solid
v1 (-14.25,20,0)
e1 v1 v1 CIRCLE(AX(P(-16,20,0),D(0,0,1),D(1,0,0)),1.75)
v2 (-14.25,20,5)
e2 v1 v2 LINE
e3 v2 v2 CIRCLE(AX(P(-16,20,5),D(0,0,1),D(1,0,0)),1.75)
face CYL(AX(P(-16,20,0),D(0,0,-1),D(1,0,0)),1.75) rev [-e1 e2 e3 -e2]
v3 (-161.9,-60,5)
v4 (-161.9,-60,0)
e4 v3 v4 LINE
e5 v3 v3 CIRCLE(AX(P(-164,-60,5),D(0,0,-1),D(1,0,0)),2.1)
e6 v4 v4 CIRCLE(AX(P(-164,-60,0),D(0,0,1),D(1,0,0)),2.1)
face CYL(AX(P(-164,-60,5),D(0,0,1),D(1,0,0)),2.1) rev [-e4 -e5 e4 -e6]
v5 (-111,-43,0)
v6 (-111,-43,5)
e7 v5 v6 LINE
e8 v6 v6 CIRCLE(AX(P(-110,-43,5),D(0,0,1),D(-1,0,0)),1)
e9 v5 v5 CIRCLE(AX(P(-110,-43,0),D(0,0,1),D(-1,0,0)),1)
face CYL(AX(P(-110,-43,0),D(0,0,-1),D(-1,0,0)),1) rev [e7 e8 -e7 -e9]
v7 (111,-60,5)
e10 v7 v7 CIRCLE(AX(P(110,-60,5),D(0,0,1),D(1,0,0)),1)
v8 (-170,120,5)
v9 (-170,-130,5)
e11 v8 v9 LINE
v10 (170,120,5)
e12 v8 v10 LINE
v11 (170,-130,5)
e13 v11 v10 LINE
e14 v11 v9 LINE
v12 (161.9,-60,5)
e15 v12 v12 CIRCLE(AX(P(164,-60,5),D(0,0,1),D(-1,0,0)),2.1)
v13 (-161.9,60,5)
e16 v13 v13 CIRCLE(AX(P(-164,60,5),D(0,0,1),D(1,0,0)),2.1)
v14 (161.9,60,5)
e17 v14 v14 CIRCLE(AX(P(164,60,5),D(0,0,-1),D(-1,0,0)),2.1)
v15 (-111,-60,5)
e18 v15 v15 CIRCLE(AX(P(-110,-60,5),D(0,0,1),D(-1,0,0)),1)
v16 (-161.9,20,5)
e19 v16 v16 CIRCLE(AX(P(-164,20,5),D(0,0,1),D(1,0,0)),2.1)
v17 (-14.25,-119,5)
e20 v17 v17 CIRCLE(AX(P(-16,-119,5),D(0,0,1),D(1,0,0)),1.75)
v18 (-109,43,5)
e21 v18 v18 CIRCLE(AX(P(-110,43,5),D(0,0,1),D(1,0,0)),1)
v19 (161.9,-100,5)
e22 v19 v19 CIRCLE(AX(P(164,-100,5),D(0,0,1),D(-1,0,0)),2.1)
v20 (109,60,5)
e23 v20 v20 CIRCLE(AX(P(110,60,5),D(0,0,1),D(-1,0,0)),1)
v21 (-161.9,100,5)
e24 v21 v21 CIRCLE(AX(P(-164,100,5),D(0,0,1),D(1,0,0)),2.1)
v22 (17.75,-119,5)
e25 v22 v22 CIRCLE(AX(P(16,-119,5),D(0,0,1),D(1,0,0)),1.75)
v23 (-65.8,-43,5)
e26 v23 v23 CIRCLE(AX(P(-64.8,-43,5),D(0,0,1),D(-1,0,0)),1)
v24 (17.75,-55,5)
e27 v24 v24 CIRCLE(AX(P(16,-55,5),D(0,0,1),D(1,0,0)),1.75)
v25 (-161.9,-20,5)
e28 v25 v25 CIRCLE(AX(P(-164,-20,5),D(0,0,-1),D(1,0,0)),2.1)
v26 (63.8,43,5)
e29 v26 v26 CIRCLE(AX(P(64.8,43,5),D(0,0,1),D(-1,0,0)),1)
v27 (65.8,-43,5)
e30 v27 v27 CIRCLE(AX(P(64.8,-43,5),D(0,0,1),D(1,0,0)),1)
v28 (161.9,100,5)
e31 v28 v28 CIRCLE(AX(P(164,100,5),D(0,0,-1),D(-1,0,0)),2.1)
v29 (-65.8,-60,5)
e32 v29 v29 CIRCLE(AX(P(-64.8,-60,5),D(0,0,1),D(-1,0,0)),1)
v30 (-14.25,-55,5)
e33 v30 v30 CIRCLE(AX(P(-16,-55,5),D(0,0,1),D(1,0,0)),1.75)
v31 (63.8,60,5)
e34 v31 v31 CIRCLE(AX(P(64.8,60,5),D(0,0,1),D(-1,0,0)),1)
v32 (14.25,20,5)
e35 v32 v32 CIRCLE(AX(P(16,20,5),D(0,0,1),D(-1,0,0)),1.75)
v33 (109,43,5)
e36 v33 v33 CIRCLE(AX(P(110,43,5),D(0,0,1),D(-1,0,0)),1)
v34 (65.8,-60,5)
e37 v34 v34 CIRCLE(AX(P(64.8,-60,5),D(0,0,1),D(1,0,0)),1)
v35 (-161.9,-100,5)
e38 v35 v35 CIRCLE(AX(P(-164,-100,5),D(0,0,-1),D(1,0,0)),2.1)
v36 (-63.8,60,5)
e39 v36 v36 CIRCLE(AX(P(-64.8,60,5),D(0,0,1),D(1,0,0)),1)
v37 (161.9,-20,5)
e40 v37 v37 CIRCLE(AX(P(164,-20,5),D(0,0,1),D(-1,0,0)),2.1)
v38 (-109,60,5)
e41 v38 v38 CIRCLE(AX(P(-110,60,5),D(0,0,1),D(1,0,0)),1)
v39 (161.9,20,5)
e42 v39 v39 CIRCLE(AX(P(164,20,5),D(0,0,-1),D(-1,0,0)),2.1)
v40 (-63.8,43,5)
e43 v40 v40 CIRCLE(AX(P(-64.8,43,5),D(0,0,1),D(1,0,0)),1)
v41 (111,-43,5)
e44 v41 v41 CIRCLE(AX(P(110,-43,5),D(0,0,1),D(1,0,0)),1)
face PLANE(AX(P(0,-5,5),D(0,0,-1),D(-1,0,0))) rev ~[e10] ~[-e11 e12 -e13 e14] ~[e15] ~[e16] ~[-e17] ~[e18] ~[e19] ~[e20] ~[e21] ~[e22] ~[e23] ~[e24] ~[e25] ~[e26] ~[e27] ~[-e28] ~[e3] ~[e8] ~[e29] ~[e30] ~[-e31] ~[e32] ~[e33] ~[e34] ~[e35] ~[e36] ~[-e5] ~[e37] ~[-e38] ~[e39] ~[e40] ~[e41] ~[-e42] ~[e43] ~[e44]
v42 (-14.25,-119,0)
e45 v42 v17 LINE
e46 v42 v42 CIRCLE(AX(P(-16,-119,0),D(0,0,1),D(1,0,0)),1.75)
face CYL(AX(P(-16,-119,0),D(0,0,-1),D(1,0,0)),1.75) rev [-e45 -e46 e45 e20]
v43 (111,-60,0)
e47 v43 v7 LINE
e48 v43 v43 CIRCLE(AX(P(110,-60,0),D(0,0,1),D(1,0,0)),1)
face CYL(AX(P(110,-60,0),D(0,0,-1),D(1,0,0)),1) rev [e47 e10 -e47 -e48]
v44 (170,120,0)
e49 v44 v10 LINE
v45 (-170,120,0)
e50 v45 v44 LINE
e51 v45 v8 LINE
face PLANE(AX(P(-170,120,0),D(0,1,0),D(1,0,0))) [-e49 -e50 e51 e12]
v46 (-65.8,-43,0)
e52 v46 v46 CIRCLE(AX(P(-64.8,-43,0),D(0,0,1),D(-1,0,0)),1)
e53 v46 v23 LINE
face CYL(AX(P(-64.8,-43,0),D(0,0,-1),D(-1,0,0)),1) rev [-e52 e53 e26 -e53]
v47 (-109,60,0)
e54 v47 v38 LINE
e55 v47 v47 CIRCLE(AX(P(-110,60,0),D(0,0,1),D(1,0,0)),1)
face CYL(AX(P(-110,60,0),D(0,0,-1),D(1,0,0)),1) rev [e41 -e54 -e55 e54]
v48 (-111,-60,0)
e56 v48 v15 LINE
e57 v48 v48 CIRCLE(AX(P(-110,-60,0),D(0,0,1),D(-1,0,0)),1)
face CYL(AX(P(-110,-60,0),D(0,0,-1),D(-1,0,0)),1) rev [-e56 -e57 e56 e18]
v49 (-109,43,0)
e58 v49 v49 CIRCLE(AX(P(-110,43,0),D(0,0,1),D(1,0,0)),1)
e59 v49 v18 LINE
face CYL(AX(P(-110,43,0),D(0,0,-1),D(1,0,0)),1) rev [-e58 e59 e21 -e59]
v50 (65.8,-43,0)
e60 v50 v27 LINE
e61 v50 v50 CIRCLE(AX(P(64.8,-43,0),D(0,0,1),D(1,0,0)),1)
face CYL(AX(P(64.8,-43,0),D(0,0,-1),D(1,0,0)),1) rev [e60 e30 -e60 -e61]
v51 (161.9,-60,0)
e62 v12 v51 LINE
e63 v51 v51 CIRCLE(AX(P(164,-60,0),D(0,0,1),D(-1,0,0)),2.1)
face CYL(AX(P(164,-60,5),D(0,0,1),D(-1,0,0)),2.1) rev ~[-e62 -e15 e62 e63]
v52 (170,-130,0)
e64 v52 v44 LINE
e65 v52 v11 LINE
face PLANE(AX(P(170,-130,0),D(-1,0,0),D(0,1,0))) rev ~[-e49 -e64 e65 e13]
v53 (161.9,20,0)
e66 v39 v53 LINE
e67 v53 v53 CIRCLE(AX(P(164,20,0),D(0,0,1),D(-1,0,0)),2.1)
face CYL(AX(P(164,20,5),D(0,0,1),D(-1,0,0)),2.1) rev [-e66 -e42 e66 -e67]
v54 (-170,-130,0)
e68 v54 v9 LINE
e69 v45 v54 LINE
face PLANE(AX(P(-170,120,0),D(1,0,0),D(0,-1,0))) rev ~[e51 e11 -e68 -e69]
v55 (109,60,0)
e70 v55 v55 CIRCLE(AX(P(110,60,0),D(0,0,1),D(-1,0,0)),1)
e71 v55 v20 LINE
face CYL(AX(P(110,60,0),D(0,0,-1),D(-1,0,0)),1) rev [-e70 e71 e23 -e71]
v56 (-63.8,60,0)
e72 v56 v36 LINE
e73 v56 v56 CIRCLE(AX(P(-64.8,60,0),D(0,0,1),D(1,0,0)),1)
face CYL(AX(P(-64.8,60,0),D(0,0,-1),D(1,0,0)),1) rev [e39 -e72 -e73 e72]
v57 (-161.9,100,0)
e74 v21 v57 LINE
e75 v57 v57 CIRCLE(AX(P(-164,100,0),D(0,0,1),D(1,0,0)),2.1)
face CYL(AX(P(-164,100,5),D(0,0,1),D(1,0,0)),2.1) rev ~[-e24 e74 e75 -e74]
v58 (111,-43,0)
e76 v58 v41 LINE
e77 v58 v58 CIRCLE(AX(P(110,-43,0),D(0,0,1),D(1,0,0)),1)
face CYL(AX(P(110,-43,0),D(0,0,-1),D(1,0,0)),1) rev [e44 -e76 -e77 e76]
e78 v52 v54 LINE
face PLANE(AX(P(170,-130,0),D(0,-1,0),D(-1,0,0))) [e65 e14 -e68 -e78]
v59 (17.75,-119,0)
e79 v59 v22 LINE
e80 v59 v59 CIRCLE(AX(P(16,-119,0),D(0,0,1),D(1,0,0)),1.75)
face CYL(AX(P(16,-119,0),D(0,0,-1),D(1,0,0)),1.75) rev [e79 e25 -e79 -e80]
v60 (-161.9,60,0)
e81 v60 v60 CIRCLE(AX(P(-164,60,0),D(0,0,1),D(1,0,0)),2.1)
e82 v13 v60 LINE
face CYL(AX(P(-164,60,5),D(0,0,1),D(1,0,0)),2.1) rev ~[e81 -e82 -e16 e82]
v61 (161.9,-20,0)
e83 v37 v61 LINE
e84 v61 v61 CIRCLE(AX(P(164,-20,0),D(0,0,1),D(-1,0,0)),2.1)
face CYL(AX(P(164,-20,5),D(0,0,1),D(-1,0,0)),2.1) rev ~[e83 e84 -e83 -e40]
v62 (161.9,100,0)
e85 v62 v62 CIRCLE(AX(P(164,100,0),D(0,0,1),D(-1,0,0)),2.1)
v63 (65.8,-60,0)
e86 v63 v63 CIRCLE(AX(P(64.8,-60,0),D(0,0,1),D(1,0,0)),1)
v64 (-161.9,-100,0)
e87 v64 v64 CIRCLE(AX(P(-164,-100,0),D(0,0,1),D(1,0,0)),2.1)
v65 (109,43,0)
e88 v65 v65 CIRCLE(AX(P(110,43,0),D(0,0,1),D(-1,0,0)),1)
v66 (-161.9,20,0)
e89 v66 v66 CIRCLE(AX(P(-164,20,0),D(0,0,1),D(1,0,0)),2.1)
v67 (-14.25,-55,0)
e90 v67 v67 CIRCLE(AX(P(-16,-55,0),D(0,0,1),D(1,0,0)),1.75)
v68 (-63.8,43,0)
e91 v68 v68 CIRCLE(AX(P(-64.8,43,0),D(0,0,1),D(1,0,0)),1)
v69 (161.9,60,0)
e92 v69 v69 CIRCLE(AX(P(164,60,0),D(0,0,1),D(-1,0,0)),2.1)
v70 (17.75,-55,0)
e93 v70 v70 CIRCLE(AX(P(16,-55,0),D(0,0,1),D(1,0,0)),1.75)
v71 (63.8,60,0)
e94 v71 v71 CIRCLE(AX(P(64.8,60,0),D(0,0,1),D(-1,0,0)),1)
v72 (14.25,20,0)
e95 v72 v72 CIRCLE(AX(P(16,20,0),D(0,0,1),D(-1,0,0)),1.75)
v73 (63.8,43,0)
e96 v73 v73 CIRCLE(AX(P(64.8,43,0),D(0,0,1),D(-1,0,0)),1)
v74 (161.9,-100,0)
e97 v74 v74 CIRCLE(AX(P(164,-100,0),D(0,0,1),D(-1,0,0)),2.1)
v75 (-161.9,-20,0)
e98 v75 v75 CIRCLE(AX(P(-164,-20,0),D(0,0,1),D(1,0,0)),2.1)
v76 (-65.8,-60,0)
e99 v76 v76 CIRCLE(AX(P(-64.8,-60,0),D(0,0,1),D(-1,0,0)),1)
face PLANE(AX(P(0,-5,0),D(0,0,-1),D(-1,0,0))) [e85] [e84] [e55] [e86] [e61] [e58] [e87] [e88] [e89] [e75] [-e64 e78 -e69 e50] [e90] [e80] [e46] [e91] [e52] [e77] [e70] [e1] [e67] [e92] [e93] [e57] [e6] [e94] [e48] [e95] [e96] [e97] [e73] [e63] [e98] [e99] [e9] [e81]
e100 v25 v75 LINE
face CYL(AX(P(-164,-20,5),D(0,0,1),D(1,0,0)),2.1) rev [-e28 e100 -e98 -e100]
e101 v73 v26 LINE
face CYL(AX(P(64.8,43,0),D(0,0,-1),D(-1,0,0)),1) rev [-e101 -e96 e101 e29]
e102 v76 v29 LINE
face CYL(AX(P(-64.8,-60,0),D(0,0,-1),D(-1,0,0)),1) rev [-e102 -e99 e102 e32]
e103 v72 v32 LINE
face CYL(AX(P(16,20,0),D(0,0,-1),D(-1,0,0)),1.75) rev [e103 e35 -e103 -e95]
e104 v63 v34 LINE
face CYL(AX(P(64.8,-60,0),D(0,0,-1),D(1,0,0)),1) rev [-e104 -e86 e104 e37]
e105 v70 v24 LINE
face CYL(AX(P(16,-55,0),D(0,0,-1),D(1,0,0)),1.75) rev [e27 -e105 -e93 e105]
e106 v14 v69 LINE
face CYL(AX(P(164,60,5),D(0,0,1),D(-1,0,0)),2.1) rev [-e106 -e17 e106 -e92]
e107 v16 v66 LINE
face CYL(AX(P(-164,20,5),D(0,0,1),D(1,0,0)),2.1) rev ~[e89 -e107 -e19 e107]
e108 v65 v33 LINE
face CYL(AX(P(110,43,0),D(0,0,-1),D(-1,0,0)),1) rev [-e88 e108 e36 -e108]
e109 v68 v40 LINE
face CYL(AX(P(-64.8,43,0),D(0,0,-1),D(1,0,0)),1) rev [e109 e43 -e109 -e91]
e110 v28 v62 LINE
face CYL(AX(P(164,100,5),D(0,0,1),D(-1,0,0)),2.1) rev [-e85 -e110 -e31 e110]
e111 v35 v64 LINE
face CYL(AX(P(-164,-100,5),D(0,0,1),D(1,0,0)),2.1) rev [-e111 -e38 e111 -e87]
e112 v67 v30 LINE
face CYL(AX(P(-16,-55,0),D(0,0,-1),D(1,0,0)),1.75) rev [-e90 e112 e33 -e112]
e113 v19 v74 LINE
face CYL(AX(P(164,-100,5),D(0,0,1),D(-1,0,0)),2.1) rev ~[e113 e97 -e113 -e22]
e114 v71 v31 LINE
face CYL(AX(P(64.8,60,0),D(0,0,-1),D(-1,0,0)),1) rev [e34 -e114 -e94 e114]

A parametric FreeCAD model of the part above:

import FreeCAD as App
import Part
import Sketcher

doc = App.newDocument("Part")
params = doc.addObject("Spreadsheet::Sheet", "Params")
for row, (alias, value) in enumerate([
    ("sketch1_diameter", "2 mm"),
    ("sketch1_diameter2", "3.5 mm"),
    ("sketch1_width", "340 mm"),
    ("sketch1_height", "250 mm"),
    ("pad1_length", "5 mm"),
    ("sketch2_diameter", "4.2 mm"),
    ("pocket1_length", "10 mm"),
    ("sketch3_diameter", "4.2 mm"),
    ("pocket2_length", "10 mm"),
], start=1):
    params.set(f"A{row}", alias)
    params.set(f"B{row}", "=" + value)
    params.setAlias(f"B{row}", alias)

body = doc.addObject("PartDesign::Body", "Body")

# Sketch on XY plane
sketch1 = body.newObject("Sketcher::SketchObject", "Sketch")
sketch1.AttachmentSupport = (doc.getObject("XY_Plane"), [""])
sketch1.MapMode = "FlatFace"
sketch1.addGeometry(Part.LineSegment(App.Vector(-170, 120, 0), App.Vector(-170, -130, 0)), False)
sketch1.addGeometry(Part.LineSegment(App.Vector(-170, -130, 0), App.Vector(170, -130, 0)), False)
sketch1.addGeometry(Part.LineSegment(App.Vector(170, -130, 0), App.Vector(170, 120, 0)), False)
sketch1.addGeometry(Part.LineSegment(App.Vector(170, 120, 0), App.Vector(-170, 120, 0)), False)
sketch1.addGeometry(Part.Circle(App.Vector(16, -119, 0), App.Vector(0, 0, 1), 1.8), False)
sketch1.addGeometry(Part.Circle(App.Vector(110, -60, 0), App.Vector(0, 0, 1), 1), False)
sketch1.addGeometry(Part.Circle(App.Vector(64.8, -60, 0), App.Vector(0, 0, 1), 1), False)
sketch1.addGeometry(Part.Circle(App.Vector(110, -43, 0), App.Vector(0, 0, 1), 1), False)
sketch1.addGeometry(Part.Circle(App.Vector(64.8, -43, 0), App.Vector(0, 0, 1), 1), False)
sketch1.addGeometry(Part.Circle(App.Vector(16, -55, 0), App.Vector(0, 0, 1), 1.8), False)
sketch1.addGeometry(Part.Circle(App.Vector(-16, -119, 0), App.Vector(0, 0, 1), 1.8), False)
sketch1.addGeometry(Part.Circle(App.Vector(-16, -55, 0), App.Vector(0, 0, 1), 1.8), False)
sketch1.addGeometry(Part.Circle(App.Vector(-64.8, -60, 0), App.Vector(0, 0, 1), 1), False)
sketch1.addGeometry(Part.Circle(App.Vector(-110, -60, 0), App.Vector(0, 0, 1), 1), False)
sketch1.addGeometry(Part.Circle(App.Vector(-64.8, -43, 0), App.Vector(0, 0, 1), 1), False)
sketch1.addGeometry(Part.Circle(App.Vector(-110, -43, 0), App.Vector(0, 0, 1), 1), False)
sketch1.addGeometry(Part.Circle(App.Vector(110, 43, 0), App.Vector(0, 0, 1), 1), False)
sketch1.addGeometry(Part.Circle(App.Vector(110, 60, 0), App.Vector(0, 0, 1), 1), False)
sketch1.addGeometry(Part.Circle(App.Vector(64.8, 43, 0), App.Vector(0, 0, 1), 1), False)
sketch1.addGeometry(Part.Circle(App.Vector(64.8, 60, 0), App.Vector(0, 0, 1), 1), False)
sketch1.addGeometry(Part.Circle(App.Vector(16, 20, 0), App.Vector(0, 0, 1), 1.8), False)
sketch1.addGeometry(Part.Circle(App.Vector(-16, 20, 0), App.Vector(0, 0, 1), 1.8), False)
sketch1.addGeometry(Part.Circle(App.Vector(-64.8, 43, 0), App.Vector(0, 0, 1), 1), False)
sketch1.addGeometry(Part.Circle(App.Vector(-64.8, 60, 0), App.Vector(0, 0, 1), 1), False)
sketch1.addGeometry(Part.Circle(App.Vector(-110, 43, 0), App.Vector(0, 0, 1), 1), False)
sketch1.addGeometry(Part.Circle(App.Vector(-110, 60, 0), App.Vector(0, 0, 1), 1), False)
sketch1.addConstraint(Sketcher.Constraint("Coincident", 0, 2, 1, 1))
sketch1.addConstraint(Sketcher.Constraint("Coincident", 1, 2, 2, 1))
sketch1.addConstraint(Sketcher.Constraint("Coincident", 2, 2, 3, 1))
sketch1.addConstraint(Sketcher.Constraint("Coincident", 3, 2, 0, 1))
sketch1.addConstraint(Sketcher.Constraint("Vertical", 0))
sketch1.addConstraint(Sketcher.Constraint("Horizontal", 1))
sketch1.addConstraint(Sketcher.Constraint("Vertical", 2))
sketch1.addConstraint(Sketcher.Constraint("Horizontal", 3))
sketch1.addConstraint(Sketcher.Constraint("Equal", 5, 6))
sketch1.addConstraint(Sketcher.Constraint("Equal", 6, 7))
sketch1.addConstraint(Sketcher.Constraint("Equal", 7, 8))
sketch1.addConstraint(Sketcher.Constraint("Equal", 4, 9))
sketch1.addConstraint(Sketcher.Constraint("Equal", 9, 10))
sketch1.addConstraint(Sketcher.Constraint("Equal", 10, 11))
sketch1.addConstraint(Sketcher.Constraint("Equal", 8, 12))
sketch1.addConstraint(Sketcher.Constraint("Equal", 12, 13))
sketch1.addConstraint(Sketcher.Constraint("Equal", 13, 14))
sketch1.addConstraint(Sketcher.Constraint("Equal", 14, 15))
sketch1.addConstraint(Sketcher.Constraint("Equal", 15, 16))
sketch1.addConstraint(Sketcher.Constraint("Equal", 16, 17))
sketch1.addConstraint(Sketcher.Constraint("Equal", 17, 18))
sketch1.addConstraint(Sketcher.Constraint("Equal", 18, 19))
sketch1.addConstraint(Sketcher.Constraint("Equal", 11, 20))
sketch1.addConstraint(Sketcher.Constraint("Equal", 20, 21))
sketch1.addConstraint(Sketcher.Constraint("Equal", 19, 22))
sketch1.addConstraint(Sketcher.Constraint("Equal", 22, 23))
sketch1.addConstraint(Sketcher.Constraint("Equal", 23, 24))
sketch1.addConstraint(Sketcher.Constraint("Equal", 24, 25))
sketch1.addConstraint(Sketcher.Constraint("Symmetric", 15, 3, 16, 3, -1, 1))
sketch1.addConstraint(Sketcher.Constraint("Symmetric", 13, 3, 17, 3, -1, 1))
sketch1.addConstraint(Sketcher.Constraint("Symmetric", 14, 3, 18, 3, -1, 1))
sketch1.addConstraint(Sketcher.Constraint("Symmetric", 12, 3, 19, 3, -1, 1))
sketch1.addConstraint(Sketcher.Constraint("Symmetric", 8, 3, 22, 3, -1, 1))
sketch1.addConstraint(Sketcher.Constraint("Symmetric", 6, 3, 23, 3, -1, 1))
sketch1.addConstraint(Sketcher.Constraint("Symmetric", 7, 3, 24, 3, -1, 1))
sketch1.addConstraint(Sketcher.Constraint("Symmetric", 5, 3, 25, 3, -1, 1))
sketch1.addConstraint(Sketcher.Constraint("Symmetric", 4, 3, 10, 3, -2))
sketch1.addConstraint(Sketcher.Constraint("Symmetric", 9, 3, 11, 3, -2))
sketch1.addConstraint(Sketcher.Constraint("Symmetric", 6, 3, 12, 3, -2))
sketch1.addConstraint(Sketcher.Constraint("Symmetric", 5, 3, 13, 3, -2))
sketch1.addConstraint(Sketcher.Constraint("Symmetric", 8, 3, 14, 3, -2))
sketch1.addConstraint(Sketcher.Constraint("Symmetric", 7, 3, 15, 3, -2))
sketch1.addConstraint(Sketcher.Constraint("Symmetric", 20, 3, 21, 3, -2))
sketch1.addConstraint(Sketcher.Constraint("Horizontal", 5, 3, 6, 3))
sketch1.addConstraint(Sketcher.Constraint("Horizontal", 7, 3, 8, 3))
sketch1.addConstraint(Sketcher.Constraint("Vertical", 5, 3, 7, 3))
sketch1.addConstraint(Sketcher.Constraint("Vertical", 6, 3, 8, 3))
sketch1.addConstraint(Sketcher.Constraint("Vertical", 4, 3, 9, 3))
sketch1.addConstraint(Sketcher.Constraint("Vertical", 9, 3, 20, 3))
sketch1.addConstraint(Sketcher.Constraint("Diameter", 5, 2.0))
sketch1.addConstraint(Sketcher.Constraint("Diameter", 4, 3.5))
sketch1.addConstraint(Sketcher.Constraint("DistanceX", 1, 1, 1, 2, 340.0))
sketch1.addConstraint(Sketcher.Constraint("DistanceY", 0, 2, 0, 1, 250.0))
sketch1.addConstraint(Sketcher.Constraint("DistanceX", -1, 1, 4, 3, 16.0))
sketch1.addConstraint(Sketcher.Constraint("DistanceY", 4, 3, -1, 1, 119.0))
sketch1.addConstraint(Sketcher.Constraint("DistanceX", -1, 1, 5, 3, 110.0))
sketch1.addConstraint(Sketcher.Constraint("DistanceY", 5, 3, -1, 1, 60.0))
sketch1.addConstraint(Sketcher.Constraint("DistanceY", 7, 3, -1, 1, 43.0))
sketch1.addConstraint(Sketcher.Constraint("DistanceY", 9, 3, -1, 1, 55.0))
sketch1.addConstraint(Sketcher.Constraint("DistanceY", -1, 1, 20, 3, 20.0))
sketch1.addConstraint(Sketcher.Constraint("DistanceX", 0, 2, -1, 1, 170.0))
sketch1.addConstraint(Sketcher.Constraint("DistanceY", 0, 2, -1, 1, 130.0))
sketch1.addConstraint(Sketcher.Constraint("DistanceX", -1, 1, 6, 3, 64.8))
sketch1.setExpression("Constraints[49]", "Params.sketch1_diameter")
sketch1.setExpression("Constraints[50]", "Params.sketch1_diameter2")
sketch1.setExpression("Constraints[51]", "Params.sketch1_width")
sketch1.setExpression("Constraints[52]", "Params.sketch1_height")
pad1 = body.newObject("PartDesign::Pad", "Pad")
pad1.Profile = sketch1
pad1.setExpression("Length", "Params.pad1_length")

# Sketch on XY plane
sketch2 = body.newObject("Sketcher::SketchObject", "Sketch001")
sketch2.AttachmentSupport = (doc.getObject("XY_Plane"), [""])
sketch2.MapMode = "FlatFace"
sketch2.AttachmentOffset = App.Placement(App.Vector(0, 0, 5), App.Rotation())
sketch2.addGeometry(Part.Circle(App.Vector(-164, 100, 0), App.Vector(0, 0, 1), 2.1), False)
sketch2.addGeometry(Part.Circle(App.Vector(-164, 60, 0), App.Vector(0, 0, 1), 2.1), False)
sketch2.addGeometry(Part.Circle(App.Vector(-164, 20, 0), App.Vector(0, 0, 1), 2.1), False)
sketch2.addConstraint(Sketcher.Constraint("Equal", 0, 1))
sketch2.addConstraint(Sketcher.Constraint("Equal", 1, 2))
sketch2.addConstraint(Sketcher.Constraint("Vertical", 0, 3, 1, 3))
sketch2.addConstraint(Sketcher.Constraint("Vertical", 1, 3, 2, 3))
sketch2.addConstraint(Sketcher.Constraint("Diameter", 0, 4.2))
sketch2.addConstraint(Sketcher.Constraint("DistanceX", 0, 3, -1, 1, 164.0))
sketch2.addConstraint(Sketcher.Constraint("DistanceY", -1, 1, 0, 3, 100.0))
sketch2.addConstraint(Sketcher.Constraint("DistanceY", -1, 1, 1, 3, 60.0))
sketch2.addConstraint(Sketcher.Constraint("DistanceY", -1, 1, 2, 3, 20.0))
sketch2.setExpression("Constraints[4]", "Params.sketch2_diameter")
pocket1 = body.newObject("PartDesign::Pocket", "Pocket")
pocket1.Profile = sketch2
pocket1.setExpression("Length", "Params.pocket1_length")
doc.recompute()

mirrored = body.newObject("PartDesign::Mirrored", "Mirrored")
mirrored.Originals = [pocket1]
mirrored.MirrorPlane = (doc.getObject("XZ_Plane"), [""])
body.Tip = mirrored
doc.recompute()

mirrored2 = body.newObject("PartDesign::Mirrored", "Mirrored001")
mirrored2.Originals = [pocket1]
mirrored2.MirrorPlane = (doc.getObject("YZ_Plane"), [""])
body.Tip = mirrored2

# Sketch on XY plane
sketch3 = body.newObject("Sketcher::SketchObject", "Sketch002")
sketch3.AttachmentSupport = (doc.getObject("XY_Plane"), [""])
sketch3.MapMode = "FlatFace"
sketch3.AttachmentOffset = App.Placement(App.Vector(0, 0, 5), App.Rotation())
sketch3.addGeometry(Part.Circle(App.Vector(164, -100, 0), App.Vector(0, 0, 1), 2.1), False)
sketch3.addGeometry(Part.Circle(App.Vector(164, -60, 0), App.Vector(0, 0, 1), 2.1), False)
sketch3.addGeometry(Part.Circle(App.Vector(164, -20, 0), App.Vector(0, 0, 1), 2.1), False)
sketch3.addConstraint(Sketcher.Constraint("Equal", 0, 1))
sketch3.addConstraint(Sketcher.Constraint("Equal", 1, 2))
sketch3.addConstraint(Sketcher.Constraint("Vertical", 0, 3, 1, 3))
sketch3.addConstraint(Sketcher.Constraint("Vertical", 1, 3, 2, 3))
sketch3.addConstraint(Sketcher.Constraint("Diameter", 0, 4.2))
sketch3.addConstraint(Sketcher.Constraint("DistanceX", -1, 1, 0, 3, 164.0))
sketch3.addConstraint(Sketcher.Constraint("DistanceY", 0, 3, -1, 1, 100.0))
sketch3.addConstraint(Sketcher.Constraint("DistanceY", 1, 3, -1, 1, 60.0))
sketch3.addConstraint(Sketcher.Constraint("DistanceY", 2, 3, -1, 1, 20.0))
sketch3.setExpression("Constraints[4]", "Params.sketch3_diameter")
pocket2 = body.newObject("PartDesign::Pocket", "Pocket001")
pocket2.Profile = sketch3
pocket2.setExpression("Length", "Params.pocket2_length")

doc.recompute()
